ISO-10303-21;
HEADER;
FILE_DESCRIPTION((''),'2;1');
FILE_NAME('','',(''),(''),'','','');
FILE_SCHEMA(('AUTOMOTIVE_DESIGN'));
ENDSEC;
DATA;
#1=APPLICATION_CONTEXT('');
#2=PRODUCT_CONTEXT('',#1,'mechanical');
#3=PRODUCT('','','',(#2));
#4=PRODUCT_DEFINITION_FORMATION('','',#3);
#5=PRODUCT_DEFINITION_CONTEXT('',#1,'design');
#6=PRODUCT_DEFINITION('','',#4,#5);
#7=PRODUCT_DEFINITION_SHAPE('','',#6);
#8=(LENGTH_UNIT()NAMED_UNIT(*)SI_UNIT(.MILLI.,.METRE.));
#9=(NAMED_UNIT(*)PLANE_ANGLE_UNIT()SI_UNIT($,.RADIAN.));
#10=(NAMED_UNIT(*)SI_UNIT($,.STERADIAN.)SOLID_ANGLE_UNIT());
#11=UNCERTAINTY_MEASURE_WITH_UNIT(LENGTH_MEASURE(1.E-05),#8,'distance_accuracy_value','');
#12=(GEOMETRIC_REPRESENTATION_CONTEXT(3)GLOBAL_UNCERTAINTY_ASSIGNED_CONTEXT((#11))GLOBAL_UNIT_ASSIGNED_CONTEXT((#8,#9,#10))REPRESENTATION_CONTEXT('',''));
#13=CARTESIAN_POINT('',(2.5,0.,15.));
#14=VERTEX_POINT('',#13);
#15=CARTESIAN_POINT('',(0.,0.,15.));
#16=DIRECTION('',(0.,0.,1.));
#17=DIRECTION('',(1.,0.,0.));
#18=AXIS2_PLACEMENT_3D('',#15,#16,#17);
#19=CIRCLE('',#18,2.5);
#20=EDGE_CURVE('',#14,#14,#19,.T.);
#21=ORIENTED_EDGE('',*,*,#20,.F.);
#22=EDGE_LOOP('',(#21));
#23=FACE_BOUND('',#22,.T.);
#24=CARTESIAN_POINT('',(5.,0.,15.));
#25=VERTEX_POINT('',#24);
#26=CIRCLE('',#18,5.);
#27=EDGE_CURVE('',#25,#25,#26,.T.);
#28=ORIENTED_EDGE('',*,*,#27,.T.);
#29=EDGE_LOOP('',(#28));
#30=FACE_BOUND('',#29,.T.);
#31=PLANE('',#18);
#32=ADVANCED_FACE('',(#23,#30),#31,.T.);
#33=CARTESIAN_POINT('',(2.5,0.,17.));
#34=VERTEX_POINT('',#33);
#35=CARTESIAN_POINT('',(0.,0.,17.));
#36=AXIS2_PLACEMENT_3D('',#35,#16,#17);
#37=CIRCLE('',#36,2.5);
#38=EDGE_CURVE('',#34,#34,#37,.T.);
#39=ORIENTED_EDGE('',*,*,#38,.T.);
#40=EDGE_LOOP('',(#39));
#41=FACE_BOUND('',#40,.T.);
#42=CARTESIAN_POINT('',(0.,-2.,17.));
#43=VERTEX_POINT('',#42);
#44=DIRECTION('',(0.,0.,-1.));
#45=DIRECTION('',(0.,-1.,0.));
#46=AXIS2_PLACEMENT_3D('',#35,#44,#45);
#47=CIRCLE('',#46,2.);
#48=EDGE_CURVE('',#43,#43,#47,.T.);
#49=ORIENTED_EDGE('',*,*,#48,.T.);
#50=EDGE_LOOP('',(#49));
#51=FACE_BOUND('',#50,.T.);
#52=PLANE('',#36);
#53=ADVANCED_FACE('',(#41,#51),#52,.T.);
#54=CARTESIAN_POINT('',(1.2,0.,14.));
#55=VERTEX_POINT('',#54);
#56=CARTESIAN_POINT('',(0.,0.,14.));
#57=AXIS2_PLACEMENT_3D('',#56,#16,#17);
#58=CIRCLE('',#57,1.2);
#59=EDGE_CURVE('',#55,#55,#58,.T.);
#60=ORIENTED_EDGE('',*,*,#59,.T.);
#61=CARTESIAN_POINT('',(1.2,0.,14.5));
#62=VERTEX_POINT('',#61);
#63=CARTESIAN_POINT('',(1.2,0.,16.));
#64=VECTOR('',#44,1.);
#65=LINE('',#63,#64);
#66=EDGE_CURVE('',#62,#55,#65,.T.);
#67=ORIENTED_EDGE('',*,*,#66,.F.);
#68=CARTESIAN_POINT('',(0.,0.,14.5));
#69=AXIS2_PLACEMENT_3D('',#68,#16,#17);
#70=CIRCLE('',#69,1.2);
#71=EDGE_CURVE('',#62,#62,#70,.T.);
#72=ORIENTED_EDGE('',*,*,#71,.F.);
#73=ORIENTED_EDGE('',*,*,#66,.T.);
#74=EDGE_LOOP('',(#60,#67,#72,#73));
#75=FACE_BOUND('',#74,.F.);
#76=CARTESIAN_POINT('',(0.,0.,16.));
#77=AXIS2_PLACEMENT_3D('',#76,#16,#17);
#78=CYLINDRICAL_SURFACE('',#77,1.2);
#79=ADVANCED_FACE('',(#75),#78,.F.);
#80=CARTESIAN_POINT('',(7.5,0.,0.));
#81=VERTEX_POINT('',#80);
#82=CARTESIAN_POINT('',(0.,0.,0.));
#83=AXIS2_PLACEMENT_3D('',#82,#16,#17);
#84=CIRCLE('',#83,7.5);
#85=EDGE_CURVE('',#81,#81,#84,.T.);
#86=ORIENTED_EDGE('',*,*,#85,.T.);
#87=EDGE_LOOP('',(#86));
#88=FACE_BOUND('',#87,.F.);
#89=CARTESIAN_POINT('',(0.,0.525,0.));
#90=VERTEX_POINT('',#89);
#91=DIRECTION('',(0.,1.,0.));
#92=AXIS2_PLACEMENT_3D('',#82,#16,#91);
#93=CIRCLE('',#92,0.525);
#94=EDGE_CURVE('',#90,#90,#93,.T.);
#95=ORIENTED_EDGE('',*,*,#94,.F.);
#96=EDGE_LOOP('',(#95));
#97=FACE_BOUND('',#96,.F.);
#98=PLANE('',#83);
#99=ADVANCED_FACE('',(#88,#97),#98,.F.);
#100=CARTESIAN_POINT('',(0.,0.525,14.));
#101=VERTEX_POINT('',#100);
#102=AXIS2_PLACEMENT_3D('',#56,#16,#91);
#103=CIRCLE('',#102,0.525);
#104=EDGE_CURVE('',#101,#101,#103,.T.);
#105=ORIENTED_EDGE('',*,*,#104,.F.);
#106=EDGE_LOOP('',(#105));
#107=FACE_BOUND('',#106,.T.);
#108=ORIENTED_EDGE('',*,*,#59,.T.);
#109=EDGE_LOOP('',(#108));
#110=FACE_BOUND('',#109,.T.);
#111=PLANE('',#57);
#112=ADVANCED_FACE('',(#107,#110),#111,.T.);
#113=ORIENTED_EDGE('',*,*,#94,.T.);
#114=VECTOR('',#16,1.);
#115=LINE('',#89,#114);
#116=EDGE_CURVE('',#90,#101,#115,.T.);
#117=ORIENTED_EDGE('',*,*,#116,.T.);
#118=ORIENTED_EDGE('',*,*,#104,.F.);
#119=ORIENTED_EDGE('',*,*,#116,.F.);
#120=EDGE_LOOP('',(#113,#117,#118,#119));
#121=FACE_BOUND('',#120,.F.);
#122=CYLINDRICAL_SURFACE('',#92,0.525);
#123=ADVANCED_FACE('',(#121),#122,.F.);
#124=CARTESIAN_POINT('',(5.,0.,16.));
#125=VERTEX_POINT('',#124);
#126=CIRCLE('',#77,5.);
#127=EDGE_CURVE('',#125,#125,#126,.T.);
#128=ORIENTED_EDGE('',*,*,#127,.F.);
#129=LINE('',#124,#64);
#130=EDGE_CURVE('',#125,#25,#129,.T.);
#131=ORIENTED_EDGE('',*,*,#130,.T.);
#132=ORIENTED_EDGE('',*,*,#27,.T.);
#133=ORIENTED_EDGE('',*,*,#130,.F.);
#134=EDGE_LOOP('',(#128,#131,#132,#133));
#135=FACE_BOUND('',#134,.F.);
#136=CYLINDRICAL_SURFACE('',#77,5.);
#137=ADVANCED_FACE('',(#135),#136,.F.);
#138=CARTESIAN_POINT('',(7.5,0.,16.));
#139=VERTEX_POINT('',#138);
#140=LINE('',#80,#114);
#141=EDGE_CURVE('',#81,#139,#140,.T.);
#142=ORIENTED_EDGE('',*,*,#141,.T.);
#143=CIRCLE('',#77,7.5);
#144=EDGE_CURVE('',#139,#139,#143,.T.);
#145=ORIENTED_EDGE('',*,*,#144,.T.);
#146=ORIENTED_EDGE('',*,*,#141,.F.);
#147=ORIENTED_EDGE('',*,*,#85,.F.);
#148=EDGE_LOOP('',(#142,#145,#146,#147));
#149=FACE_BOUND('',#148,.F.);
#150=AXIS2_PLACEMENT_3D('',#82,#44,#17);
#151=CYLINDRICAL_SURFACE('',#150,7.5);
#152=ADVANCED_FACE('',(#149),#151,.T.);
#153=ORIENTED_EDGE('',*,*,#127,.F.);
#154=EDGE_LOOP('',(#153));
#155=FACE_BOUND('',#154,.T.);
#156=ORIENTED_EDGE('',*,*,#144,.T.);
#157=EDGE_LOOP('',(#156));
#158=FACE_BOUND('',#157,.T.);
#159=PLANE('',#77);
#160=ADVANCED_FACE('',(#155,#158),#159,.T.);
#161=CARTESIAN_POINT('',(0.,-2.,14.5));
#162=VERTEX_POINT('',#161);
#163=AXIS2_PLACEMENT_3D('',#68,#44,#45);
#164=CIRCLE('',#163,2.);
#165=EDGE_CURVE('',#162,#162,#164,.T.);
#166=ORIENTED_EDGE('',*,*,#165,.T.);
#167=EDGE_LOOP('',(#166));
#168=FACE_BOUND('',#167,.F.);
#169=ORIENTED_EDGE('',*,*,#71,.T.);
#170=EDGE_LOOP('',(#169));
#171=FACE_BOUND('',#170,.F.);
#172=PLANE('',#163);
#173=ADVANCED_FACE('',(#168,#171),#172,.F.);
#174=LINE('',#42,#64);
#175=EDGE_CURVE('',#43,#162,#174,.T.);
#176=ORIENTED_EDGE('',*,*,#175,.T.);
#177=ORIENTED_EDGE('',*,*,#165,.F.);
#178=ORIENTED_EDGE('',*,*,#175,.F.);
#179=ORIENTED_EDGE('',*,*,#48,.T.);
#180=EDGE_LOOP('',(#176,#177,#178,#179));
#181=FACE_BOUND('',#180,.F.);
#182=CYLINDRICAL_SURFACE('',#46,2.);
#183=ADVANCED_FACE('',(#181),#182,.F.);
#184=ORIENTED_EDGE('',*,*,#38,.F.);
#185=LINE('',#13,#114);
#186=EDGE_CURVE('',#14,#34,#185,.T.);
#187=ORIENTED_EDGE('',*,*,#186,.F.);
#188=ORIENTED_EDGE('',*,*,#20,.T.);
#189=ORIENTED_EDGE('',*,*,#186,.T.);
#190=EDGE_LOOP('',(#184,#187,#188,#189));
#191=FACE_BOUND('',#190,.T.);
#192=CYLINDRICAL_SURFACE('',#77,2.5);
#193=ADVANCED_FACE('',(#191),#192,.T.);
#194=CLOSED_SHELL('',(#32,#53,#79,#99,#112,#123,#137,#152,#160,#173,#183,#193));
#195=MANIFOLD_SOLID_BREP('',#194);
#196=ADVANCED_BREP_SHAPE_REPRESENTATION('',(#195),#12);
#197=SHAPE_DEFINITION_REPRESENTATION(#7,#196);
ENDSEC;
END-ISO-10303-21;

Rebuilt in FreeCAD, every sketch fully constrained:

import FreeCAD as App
import Part
import Sketcher
from FreeCAD import Vector

doc = App.newDocument("Part")
params = doc.addObject("Spreadsheet::Sheet", "Params")
for row, (alias, value) in enumerate([
    ("sketch1_diameter", "15 mm"),
    ("pad1_length", "16 mm"),
    ("sketch2_diameter", "2.4 mm"),
    ("pocket1_length", "2 mm"),
    ("sketch3_diameter", "5 mm"),
    ("sketch3_diameter2", "3.8 mm"),
    ("pad2_length", "1 mm"),
    ("sketch4_diameter", "10 mm"),
    ("sketch4_diameter2", "5 mm"),
    ("pocket2_length", "1 mm"),
    ("sketch5_diameter", "1.05 mm"),
    ("hole_diameter", "1.05 mm"),
    ("sketch6_diameter", "4 mm"),
    ("hole2_diameter", "4 mm"),
    ("hole2_depth", "2.5 mm"),
], start=1):
    params.set(f"A{row}", alias)
    params.set(f"B{row}", "=" + value)
    params.setAlias(f"B{row}", alias)

body = doc.addObject("PartDesign::Body", "Body")

sketch1 = body.newObject("Sketcher::SketchObject", "Sketch")
sketch1.AttachmentSupport = (doc.getObject("XY_Plane"), [""])
sketch1.MapMode = "FlatFace"
sketch1.addGeometry(Part.Circle(Vector(0, 0, 0), Vector(0, 0, 1), 7.5), False)
sketch1.addConstraint(Sketcher.Constraint("Coincident", 0, 3, -1, 1))
sketch1.addConstraint(Sketcher.Constraint("Diameter", 0, 15.0))
sketch1.setExpression("Constraints[1]", "Params.sketch1_diameter")
pad1 = body.newObject("PartDesign::Pad", "Pad")
pad1.Profile = sketch1
pad1.setExpression("Length", "Params.pad1_length")

sketch2 = body.newObject("Sketcher::SketchObject", "Sketch001")
sketch2.AttachmentSupport = (doc.getObject("XY_Plane"), [""])
sketch2.MapMode = "FlatFace"
sketch2.AttachmentOffset = App.Placement(Vector(0, 0, 16), App.Rotation())
sketch2.addGeometry(Part.Circle(Vector(0, 0, 0), Vector(0, 0, 1), 1.2), False)
sketch2.addConstraint(Sketcher.Constraint("Coincident", 0, 3, -1, 1))
sketch2.addConstraint(Sketcher.Constraint("Diameter", 0, 2.4))
sketch2.setExpression("Constraints[1]", "Params.sketch2_diameter")
pocket1 = body.newObject("PartDesign::Pocket", "Pocket")
pocket1.Profile = sketch2
pocket1.setExpression("Length", "Params.pocket1_length")

sketch3 = body.newObject("Sketcher::SketchObject", "Sketch002")
sketch3.AttachmentSupport = (doc.getObject("XY_Plane"), [""])
sketch3.MapMode = "FlatFace"
sketch3.AttachmentOffset = App.Placement(Vector(0, 0, 16), App.Rotation())
sketch3.addGeometry(Part.Circle(Vector(0, 0, 0), Vector(0, 0, 1), 2.5), False)
sketch3.addGeometry(Part.Circle(Vector(0, 0, 0), Vector(0, 0, 1), 1.9), False)
sketch3.addConstraint(Sketcher.Constraint("Coincident", 0, 3, -1, 1))
sketch3.addConstraint(Sketcher.Constraint("Coincident", 1, 3, -1, 1))
sketch3.addConstraint(Sketcher.Constraint("Diameter", 0, 5.0))
sketch3.addConstraint(Sketcher.Constraint("Diameter", 1, 3.8))
sketch3.setExpression("Constraints[2]", "Params.sketch3_diameter")
sketch3.setExpression("Constraints[3]", "Params.sketch3_diameter2")
pad2 = body.newObject("PartDesign::Pad", "Pad001")
pad2.Profile = sketch3
pad2.setExpression("Length", "Params.pad2_length")

sketch4 = body.newObject("Sketcher::SketchObject", "Sketch003")
sketch4.AttachmentSupport = (doc.getObject("XY_Plane"), [""])
sketch4.MapMode = "FlatFace"
sketch4.AttachmentOffset = App.Placement(Vector(0, 0, 16), App.Rotation())
sketch4.addGeometry(Part.Circle(Vector(0, 0, 0), Vector(0, 0, 1), 5), False)
sketch4.addGeometry(Part.Circle(Vector(0, 0, 0), Vector(0, 0, 1), 2.5), False)
sketch4.addConstraint(Sketcher.Constraint("Coincident", 0, 3, -1, 1))
sketch4.addConstraint(Sketcher.Constraint("Coincident", 1, 3, -1, 1))
sketch4.addConstraint(Sketcher.Constraint("Diameter", 0, 10.0))
sketch4.addConstraint(Sketcher.Constraint("Diameter", 1, 5.0))
sketch4.setExpression("Constraints[2]", "Params.sketch4_diameter")
sketch4.setExpression("Constraints[3]", "Params.sketch4_diameter2")
pocket2 = body.newObject("PartDesign::Pocket", "Pocket001")
pocket2.Profile = sketch4
pocket2.setExpression("Length", "Params.pocket2_length")

sketch5 = body.newObject("Sketcher::SketchObject", "Sketch004")
sketch5.AttachmentSupport = (doc.getObject("XY_Plane"), [""])
sketch5.MapMode = "FlatFace"
sketch5.addGeometry(Part.Circle(Vector(0, 0, 0), Vector(0, 0, 1), 0.525), False)
sketch5.addConstraint(Sketcher.Constraint("Coincident", 0, 3, -1, 1))
sketch5.addConstraint(Sketcher.Constraint("Diameter", 0, 1.05))
sketch5.setExpression("Constraints[1]", "Params.sketch5_diameter")
doc.recompute()
hole = body.newObject("PartDesign::Hole", "Hole")
hole.Profile = sketch5
hole.ThreadType = "None"
hole.setExpression("Diameter", "Params.hole_diameter")
hole.DepthType = "ThroughAll"
hole.Reversed = True

sketch6 = body.newObject("Sketcher::SketchObject", "Sketch005")
sketch6.AttachmentSupport = (doc.getObject("XY_Plane"), [""])
sketch6.MapMode = "FlatFace"
sketch6.AttachmentOffset = App.Placement(Vector(0, 0, 17), App.Rotation())
sketch6.addGeometry(Part.Circle(Vector(0, 0, 0), Vector(0, 0, 1), 2), False)
sketch6.addConstraint(Sketcher.Constraint("Coincident", 0, 3, -1, 1))
sketch6.addConstraint(Sketcher.Constraint("Diameter", 0, 4.0))
sketch6.setExpression("Constraints[1]", "Params.sketch6_diameter")
doc.recompute()
hole2 = body.newObject("PartDesign::Hole", "Hole001")
hole2.Profile = sketch6
hole2.ThreadType = "None"
hole2.setExpression("Diameter", "Params.hole2_diameter")
hole2.DepthType = "Dimension"
hole2.setExpression("Depth", "Params.hole2_depth")
hole2.DrillPoint = "Flat"

doc.recompute()
